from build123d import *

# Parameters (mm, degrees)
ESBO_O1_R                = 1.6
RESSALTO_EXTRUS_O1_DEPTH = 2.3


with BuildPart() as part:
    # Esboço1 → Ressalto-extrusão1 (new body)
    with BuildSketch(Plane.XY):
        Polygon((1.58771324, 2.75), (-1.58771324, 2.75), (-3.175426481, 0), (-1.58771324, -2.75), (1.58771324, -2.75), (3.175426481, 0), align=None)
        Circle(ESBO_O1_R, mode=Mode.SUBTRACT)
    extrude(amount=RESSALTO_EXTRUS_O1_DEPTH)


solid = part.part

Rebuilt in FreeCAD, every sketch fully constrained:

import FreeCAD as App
import Part
import Sketcher
Q = App.Units.Quantity


def add_polygon(sketch, points):
    """Adds a closed chain of lines whose ends are joined by coincident constraints."""
    first, n = sketch.GeometryCount, len(points)
    for a, b in zip(points, points[1:] + points[:1]):
        sketch.addGeometry(Part.LineSegment(App.Vector(*a, 0), App.Vector(*b, 0)), False)
    for i in range(n):
        sketch.addConstraint(Sketcher.Constraint("Coincident", first + i, 2, first + (i + 1) % n, 1))

doc = App.newDocument("Part")
body = doc.addObject("PartDesign::Body", "Body")

# Sketch on XY plane
sketch1 = body.newObject("Sketcher::SketchObject", "Sketch")
sketch1.AttachmentSupport = (doc.getObject("XY_Plane"), [""])
sketch1.MapMode = "FlatFace"
add_polygon(sketch1, [(1.587713, 2.75), (-1.587713, 2.75), (-3.175426, 0), (-1.587713, -2.75), (1.587713, -2.75), (3.175426, 0)])  # lines 0-5
sketch1.addGeometry(Part.Circle(App.Vector(0, 0, 0), App.Vector(0, 0, 1), 1.6), False)  # 6
sketch1.addConstraint(Sketcher.Constraint("Horizontal", 0))
sketch1.addConstraint(Sketcher.Constraint("Horizontal", 3))
sketch1.addConstraint(Sketcher.Constraint("Coincident", 6, 3, -1, 1))
sketch1.addConstraint(Sketcher.Constraint("Symmetric", 0, 2, 3, 2, -1, 1))
sketch1.addConstraint(Sketcher.Constraint("Symmetric", 1, 2, 4, 2, -1, 1))
sketch1.addConstraint(Sketcher.Constraint("PointOnObject", 1, 2, -1))
sketch1.addConstraint(Sketcher.Constraint("Parallel", 2, 5))
sketch1.addConstraint(Sketcher.Constraint("Vertical", 0, 2, 2, 2))
sketch1.addConstraint(Sketcher.Constraint("Diameter", 6, 3.2))
sketch1.addConstraint(Sketcher.Constraint("Angle", 1, Q("-120 deg")))
sketch1.addConstraint(Sketcher.Constraint("DistanceY", 2, 2, 0, 2, 5.5))
sketch1.addConstraint(Sketcher.Constraint("DistanceX", 0, 2, 0, 1, 3.175426))
pad1 = body.newObject("PartDesign::Pad", "Pad")
pad1.Profile = sketch1
pad1.Length = 2.3

doc.recompute()
